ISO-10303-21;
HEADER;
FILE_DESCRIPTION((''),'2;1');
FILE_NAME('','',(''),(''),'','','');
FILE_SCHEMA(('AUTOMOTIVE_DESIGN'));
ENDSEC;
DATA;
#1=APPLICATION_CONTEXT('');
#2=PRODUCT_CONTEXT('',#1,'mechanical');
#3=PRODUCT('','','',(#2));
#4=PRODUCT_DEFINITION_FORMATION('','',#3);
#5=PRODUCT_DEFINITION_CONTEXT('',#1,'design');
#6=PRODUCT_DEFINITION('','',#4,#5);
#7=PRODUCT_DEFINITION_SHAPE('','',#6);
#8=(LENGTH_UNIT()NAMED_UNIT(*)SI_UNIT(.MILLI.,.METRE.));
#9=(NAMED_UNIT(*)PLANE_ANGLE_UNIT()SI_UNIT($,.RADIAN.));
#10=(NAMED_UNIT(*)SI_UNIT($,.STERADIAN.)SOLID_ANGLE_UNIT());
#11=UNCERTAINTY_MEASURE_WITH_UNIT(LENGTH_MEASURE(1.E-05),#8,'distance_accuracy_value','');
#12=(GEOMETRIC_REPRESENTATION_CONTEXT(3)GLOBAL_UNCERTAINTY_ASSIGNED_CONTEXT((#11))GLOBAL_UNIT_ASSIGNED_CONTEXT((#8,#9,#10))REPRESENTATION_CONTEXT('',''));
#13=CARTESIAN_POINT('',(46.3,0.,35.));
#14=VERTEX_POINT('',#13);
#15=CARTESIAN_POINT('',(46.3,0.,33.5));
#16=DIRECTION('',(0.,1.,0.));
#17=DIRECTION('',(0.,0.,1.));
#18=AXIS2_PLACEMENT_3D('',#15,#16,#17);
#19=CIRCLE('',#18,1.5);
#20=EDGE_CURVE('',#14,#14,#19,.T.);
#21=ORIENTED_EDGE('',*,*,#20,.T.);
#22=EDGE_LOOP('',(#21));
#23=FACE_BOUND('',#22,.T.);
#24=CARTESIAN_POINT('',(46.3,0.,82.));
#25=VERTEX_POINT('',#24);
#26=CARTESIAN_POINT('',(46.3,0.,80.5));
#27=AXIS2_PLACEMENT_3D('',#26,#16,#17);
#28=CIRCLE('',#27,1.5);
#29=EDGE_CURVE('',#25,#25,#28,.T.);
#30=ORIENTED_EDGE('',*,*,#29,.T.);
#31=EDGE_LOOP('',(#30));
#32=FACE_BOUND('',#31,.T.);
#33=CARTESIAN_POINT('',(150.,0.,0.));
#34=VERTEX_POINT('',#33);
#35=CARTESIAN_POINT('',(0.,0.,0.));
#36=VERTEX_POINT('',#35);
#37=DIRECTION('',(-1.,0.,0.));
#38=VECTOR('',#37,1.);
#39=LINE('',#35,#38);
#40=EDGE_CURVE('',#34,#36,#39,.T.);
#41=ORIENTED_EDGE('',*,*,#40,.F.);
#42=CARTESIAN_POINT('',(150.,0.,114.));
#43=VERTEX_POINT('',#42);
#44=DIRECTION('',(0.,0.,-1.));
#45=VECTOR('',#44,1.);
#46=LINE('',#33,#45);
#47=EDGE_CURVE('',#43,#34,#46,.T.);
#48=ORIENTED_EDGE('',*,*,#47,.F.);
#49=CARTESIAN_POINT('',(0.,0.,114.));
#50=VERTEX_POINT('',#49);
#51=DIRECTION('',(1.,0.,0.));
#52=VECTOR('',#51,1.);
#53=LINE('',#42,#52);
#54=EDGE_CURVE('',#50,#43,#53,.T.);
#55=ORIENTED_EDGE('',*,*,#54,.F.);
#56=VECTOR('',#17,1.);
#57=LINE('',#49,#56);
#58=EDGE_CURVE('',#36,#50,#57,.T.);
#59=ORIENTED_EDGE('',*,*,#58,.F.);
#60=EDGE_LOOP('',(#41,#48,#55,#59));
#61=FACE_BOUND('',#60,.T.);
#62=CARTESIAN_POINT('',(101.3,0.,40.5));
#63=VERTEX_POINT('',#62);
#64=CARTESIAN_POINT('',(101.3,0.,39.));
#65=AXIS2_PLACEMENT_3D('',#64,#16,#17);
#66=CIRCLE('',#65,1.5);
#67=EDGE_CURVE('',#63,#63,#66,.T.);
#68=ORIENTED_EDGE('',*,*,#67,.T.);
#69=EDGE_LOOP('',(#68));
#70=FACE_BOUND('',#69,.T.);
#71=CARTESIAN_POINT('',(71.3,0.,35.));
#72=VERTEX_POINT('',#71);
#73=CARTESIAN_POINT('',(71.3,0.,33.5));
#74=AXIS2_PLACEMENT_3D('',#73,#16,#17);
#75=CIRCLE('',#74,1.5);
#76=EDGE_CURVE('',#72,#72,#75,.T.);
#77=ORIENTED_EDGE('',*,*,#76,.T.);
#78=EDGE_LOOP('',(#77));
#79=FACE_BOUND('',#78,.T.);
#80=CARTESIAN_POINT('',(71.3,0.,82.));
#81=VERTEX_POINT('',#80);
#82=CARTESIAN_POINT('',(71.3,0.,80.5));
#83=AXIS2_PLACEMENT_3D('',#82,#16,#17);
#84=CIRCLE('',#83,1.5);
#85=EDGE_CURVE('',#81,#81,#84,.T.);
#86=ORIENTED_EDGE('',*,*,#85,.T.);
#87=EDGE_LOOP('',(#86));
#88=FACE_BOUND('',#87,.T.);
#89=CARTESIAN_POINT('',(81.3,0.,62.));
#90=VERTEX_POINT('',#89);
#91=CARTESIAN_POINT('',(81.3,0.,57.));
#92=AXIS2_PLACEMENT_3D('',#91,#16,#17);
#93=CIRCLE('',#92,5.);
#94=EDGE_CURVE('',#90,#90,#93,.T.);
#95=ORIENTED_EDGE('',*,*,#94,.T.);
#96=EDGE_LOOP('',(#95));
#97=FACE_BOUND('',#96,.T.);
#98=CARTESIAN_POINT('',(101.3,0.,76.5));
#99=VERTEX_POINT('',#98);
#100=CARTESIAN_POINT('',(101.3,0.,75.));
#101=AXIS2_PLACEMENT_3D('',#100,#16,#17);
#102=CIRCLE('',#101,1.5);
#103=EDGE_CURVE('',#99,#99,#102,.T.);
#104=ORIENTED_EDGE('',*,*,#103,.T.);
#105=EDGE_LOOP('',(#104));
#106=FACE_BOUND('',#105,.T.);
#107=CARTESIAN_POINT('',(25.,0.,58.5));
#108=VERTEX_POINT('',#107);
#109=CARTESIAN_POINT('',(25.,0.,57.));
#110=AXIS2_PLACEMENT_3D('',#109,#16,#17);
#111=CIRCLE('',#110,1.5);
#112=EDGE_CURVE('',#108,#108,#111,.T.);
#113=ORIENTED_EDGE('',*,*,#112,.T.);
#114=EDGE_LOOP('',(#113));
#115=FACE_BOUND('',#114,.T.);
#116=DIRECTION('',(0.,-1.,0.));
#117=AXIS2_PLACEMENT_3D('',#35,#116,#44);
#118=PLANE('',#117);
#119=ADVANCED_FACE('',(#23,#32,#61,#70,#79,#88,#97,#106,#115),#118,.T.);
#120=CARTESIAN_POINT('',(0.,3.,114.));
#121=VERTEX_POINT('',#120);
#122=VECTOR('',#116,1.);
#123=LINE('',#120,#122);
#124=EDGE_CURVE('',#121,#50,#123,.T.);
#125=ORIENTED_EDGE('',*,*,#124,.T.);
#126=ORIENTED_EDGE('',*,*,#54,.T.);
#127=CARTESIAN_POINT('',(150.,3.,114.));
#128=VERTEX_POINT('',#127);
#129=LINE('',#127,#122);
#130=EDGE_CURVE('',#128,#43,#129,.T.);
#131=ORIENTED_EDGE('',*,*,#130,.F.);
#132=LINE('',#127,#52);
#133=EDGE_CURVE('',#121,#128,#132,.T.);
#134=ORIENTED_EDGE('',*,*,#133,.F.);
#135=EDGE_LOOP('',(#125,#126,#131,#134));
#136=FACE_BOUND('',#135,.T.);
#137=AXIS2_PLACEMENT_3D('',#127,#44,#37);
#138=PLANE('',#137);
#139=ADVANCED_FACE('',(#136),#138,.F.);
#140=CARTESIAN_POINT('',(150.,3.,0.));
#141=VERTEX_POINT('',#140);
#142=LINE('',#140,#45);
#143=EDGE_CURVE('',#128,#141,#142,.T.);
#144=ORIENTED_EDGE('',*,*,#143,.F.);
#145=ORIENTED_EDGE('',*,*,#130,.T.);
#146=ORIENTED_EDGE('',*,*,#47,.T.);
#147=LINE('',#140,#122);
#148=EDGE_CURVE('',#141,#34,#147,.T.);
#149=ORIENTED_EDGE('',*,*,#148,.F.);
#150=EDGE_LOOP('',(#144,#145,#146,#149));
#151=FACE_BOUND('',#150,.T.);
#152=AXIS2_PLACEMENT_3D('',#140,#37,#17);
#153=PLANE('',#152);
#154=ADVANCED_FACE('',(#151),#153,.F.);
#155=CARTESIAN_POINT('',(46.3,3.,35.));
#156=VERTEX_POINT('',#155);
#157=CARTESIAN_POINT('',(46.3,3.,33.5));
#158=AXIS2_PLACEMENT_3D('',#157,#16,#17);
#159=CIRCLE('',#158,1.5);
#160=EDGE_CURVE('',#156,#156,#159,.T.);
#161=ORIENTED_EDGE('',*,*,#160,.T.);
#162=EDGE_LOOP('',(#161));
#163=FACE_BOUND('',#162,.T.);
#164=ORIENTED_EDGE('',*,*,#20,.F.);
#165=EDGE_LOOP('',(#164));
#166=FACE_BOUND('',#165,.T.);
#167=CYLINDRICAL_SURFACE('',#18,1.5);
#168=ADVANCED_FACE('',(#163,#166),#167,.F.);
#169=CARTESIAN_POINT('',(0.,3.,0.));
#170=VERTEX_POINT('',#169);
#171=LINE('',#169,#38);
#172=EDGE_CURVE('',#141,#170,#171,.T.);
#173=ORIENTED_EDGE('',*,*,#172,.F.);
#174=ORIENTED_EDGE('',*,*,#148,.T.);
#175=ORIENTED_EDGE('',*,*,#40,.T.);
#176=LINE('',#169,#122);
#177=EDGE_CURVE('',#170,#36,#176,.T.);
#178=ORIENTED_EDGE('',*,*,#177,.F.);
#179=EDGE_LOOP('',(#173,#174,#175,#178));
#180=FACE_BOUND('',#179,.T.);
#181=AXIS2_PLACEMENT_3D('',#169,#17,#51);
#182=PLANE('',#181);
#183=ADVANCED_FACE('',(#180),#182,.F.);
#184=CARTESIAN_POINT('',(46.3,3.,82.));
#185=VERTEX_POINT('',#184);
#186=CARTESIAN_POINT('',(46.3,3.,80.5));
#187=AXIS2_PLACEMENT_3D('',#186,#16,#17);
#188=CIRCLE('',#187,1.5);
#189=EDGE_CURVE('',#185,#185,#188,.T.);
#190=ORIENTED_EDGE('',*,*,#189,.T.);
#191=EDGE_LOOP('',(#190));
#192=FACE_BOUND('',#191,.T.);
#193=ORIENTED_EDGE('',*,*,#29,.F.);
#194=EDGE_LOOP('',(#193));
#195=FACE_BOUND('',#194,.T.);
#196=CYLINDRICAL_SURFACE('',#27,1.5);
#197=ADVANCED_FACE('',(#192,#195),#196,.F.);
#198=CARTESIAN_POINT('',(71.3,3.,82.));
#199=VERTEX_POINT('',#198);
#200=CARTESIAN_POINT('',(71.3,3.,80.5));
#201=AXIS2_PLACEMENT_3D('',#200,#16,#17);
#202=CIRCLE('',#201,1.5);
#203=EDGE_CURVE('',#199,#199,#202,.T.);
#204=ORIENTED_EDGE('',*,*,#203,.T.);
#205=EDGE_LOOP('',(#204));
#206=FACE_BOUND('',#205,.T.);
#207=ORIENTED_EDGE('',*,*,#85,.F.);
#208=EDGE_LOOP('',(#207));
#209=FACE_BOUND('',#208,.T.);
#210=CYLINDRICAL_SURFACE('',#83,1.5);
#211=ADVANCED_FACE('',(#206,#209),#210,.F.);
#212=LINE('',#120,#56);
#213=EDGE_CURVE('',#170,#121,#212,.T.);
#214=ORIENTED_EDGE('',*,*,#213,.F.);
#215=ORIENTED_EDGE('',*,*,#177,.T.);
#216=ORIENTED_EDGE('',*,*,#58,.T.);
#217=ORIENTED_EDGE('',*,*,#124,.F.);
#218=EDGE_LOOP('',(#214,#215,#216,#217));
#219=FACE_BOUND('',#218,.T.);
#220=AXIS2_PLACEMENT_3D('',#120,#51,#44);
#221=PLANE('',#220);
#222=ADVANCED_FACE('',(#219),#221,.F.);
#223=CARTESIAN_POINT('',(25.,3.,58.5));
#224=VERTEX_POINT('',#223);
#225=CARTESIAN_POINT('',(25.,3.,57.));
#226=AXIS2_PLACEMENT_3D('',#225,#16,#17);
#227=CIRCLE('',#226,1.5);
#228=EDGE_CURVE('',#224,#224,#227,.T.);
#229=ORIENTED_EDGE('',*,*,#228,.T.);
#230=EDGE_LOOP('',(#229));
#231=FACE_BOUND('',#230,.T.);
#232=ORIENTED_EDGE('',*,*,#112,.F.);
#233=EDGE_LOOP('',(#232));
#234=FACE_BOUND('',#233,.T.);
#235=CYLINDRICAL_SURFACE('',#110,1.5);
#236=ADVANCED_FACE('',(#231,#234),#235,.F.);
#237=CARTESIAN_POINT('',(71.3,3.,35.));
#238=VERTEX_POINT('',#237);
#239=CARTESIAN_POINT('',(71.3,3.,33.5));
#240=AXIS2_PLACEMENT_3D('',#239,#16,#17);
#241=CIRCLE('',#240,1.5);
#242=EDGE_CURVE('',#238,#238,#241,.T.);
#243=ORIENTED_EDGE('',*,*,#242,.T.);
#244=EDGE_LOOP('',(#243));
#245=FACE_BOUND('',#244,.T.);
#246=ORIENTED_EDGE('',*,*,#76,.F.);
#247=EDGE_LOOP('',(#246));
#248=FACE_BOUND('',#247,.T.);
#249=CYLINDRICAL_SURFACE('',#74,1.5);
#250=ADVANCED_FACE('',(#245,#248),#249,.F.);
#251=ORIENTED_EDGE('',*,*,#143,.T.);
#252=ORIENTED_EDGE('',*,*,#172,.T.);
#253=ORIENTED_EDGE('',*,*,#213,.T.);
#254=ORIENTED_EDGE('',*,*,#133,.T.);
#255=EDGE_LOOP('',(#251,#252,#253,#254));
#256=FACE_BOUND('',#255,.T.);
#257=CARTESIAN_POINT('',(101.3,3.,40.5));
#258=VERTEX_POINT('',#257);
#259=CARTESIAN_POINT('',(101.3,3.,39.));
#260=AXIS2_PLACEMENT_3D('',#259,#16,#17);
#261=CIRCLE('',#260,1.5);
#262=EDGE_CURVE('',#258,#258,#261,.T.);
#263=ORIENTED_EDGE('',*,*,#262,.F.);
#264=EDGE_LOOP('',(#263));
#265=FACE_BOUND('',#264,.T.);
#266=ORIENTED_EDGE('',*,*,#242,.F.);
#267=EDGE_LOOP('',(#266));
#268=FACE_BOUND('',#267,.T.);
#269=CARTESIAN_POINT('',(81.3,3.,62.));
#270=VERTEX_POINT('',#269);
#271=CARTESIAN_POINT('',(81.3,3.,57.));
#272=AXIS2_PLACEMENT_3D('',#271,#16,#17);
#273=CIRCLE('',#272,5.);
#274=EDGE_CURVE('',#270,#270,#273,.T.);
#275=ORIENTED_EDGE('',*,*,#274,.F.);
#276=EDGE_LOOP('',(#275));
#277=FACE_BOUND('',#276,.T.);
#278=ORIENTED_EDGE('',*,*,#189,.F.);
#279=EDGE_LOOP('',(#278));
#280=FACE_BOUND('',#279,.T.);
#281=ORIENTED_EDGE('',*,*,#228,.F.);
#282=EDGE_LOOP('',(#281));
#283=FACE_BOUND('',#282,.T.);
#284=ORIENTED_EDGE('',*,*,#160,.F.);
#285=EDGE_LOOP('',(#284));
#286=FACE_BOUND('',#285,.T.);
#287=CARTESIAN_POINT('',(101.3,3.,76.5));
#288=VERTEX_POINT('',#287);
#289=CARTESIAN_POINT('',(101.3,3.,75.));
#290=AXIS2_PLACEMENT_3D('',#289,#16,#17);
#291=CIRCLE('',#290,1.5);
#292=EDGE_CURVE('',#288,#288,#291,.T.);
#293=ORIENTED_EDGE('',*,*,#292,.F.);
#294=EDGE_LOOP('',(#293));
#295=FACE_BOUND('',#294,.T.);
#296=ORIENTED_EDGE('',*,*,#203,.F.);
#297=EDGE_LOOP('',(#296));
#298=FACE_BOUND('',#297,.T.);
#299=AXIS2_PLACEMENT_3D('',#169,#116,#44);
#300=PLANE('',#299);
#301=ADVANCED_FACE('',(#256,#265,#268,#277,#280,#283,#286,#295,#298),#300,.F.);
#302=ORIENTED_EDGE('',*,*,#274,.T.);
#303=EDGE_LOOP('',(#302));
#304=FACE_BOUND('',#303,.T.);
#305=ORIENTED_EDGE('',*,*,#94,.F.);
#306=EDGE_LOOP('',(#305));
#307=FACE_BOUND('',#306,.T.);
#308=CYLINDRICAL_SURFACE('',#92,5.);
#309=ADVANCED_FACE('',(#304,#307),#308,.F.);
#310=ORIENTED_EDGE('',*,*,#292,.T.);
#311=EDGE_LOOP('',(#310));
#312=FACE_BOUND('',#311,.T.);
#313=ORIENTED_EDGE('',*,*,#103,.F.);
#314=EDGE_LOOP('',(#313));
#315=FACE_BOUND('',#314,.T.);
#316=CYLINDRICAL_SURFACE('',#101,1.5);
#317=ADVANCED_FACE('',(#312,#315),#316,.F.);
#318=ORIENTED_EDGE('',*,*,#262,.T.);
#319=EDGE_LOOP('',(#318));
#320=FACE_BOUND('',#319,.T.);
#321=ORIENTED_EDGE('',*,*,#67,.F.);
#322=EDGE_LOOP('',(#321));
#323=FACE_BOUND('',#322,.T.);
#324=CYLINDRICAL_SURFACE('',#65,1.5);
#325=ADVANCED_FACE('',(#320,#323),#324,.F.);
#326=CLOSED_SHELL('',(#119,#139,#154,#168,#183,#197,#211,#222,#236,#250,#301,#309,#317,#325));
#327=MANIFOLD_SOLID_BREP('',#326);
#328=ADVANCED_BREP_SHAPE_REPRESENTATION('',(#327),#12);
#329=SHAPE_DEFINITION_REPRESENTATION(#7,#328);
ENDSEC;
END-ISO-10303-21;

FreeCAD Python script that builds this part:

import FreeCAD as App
import Part
import Sketcher
from FreeCAD import Vector

doc = App.newDocument("Part")
params = doc.addObject("Spreadsheet::Sheet", "Params")
for row, (alias, value) in enumerate([
    ("sketch1_width", "150 mm"),
    ("sketch1_height", "114 mm"),
    ("pad1_length", "3 mm"),
    ("sketch2_diameter", "3 mm"),
    ("sketch2_diameter2", "10 mm"),
    ("pocket1_length", "3 mm"),
], start=1):
    params.set(f"A{row}", alias)
    params.set(f"B{row}", "=" + value)
    params.setAlias(f"B{row}", alias)

body = doc.addObject("PartDesign::Body", "Body")

# Sketch on XZ plane
sketch1 = body.newObject("Sketcher::SketchObject", "Sketch")
sketch1.AttachmentSupport = (doc.getObject("XZ_Plane"), [""])
sketch1.MapMode = "FlatFace"
sketch1.addGeometry([
    Part.LineSegment(Vector(0, 0, 0), Vector(0, 114, 0)),
    Part.LineSegment(Vector(0, 114, 0), Vector(150, 114, 0)),
    Part.LineSegment(Vector(150, 114, 0), Vector(150, 0, 0)),
    Part.LineSegment(Vector(150, 0, 0), Vector(0, 0, 0)),
], False)
sketch1.addConstraint([
    Sketcher.Constraint("Coincident", 0, 2, 1, 1),
    Sketcher.Constraint("Coincident", 1, 2, 2, 1),
    Sketcher.Constraint("Coincident", 2, 2, 3, 1),
    Sketcher.Constraint("Coincident", 3, 2, 0, 1),
    Sketcher.Constraint("Vertical", 0),
    Sketcher.Constraint("Horizontal", 1),
    Sketcher.Constraint("Vertical", 2),
    Sketcher.Constraint("Horizontal", 3),
    Sketcher.Constraint("Coincident", 3, 2, -1, 1),
    Sketcher.Constraint("DistanceX", 1, 1, 1, 2, 150.0),
    Sketcher.Constraint("DistanceY", 0, 1, 0, 2, 114.0),
])
sketch1.setExpression("Constraints[9]", "Params.sketch1_width")
sketch1.setExpression("Constraints[10]", "Params.sketch1_height")
pad1 = body.newObject("PartDesign::Pad", "Pad")
pad1.Profile = sketch1
pad1.setExpression("Length", "Params.pad1_length")
pad1.Reversed = True

# Sketch on XZ plane
sketch2 = body.newObject("Sketcher::SketchObject", "Sketch001")
sketch2.AttachmentSupport = (doc.getObject("XZ_Plane"), [""])
sketch2.MapMode = "FlatFace"
sketch2.AttachmentOffset = App.Placement(Vector(0, 0, -3), App.Rotation())
sketch2.addGeometry([
    Part.Circle(Vector(25, 57, 0), Vector(0, 0, 1), 1.5),  # 0
    Part.Circle(Vector(101.3, 75, 0), Vector(0, 0, 1), 1.5),  # 1
    Part.Circle(Vector(101.3, 39, 0), Vector(0, 0, 1), 1.5),  # 2
    Part.Circle(Vector(71.3, 80.5, 0), Vector(0, 0, 1), 1.5),  # 3
    Part.Circle(Vector(46.3, 80.5, 0), Vector(0, 0, 1), 1.5),  # 4
    Part.Circle(Vector(71.3, 33.5, 0), Vector(0, 0, 1), 1.5),  # 5
    Part.Circle(Vector(46.3, 33.5, 0), Vector(0, 0, 1), 1.5),  # 6
    Part.Circle(Vector(81.3, 57, 0), Vector(0, 0, 1), 5),  # 7
], False)
sketch2.addConstraint([
    Sketcher.Constraint("Equal", 0, 1),
    Sketcher.Constraint("Equal", 1, 2),
    Sketcher.Constraint("Equal", 2, 3),
    Sketcher.Constraint("Equal", 3, 4),
    Sketcher.Constraint("Equal", 4, 5),
    Sketcher.Constraint("Equal", 5, 6),
    Sketcher.Constraint("Horizontal", 3, 3, 4, 3),
    Sketcher.Constraint("Horizontal", 5, 3, 6, 3),
    Sketcher.Constraint("Horizontal", 0, 3, 7, 3),
    Sketcher.Constraint("Vertical", 1, 3, 2, 3),
    Sketcher.Constraint("Vertical", 3, 3, 5, 3),
    Sketcher.Constraint("Vertical", 4, 3, 6, 3),
    Sketcher.Constraint("Diameter", 0, 3.0),
    Sketcher.Constraint("Diameter", 7, 10.0),
    Sketcher.Constraint("DistanceX", -1, 1, 0, 3, 25.0),
    Sketcher.Constraint("DistanceY", -1, 1, 0, 3, 57.0),
    Sketcher.Constraint("DistanceY", -1, 1, 1, 3, 75.0),
    Sketcher.Constraint("DistanceY", -1, 1, 2, 3, 39.0),
    Sketcher.Constraint("DistanceX", 3, 3, 1, 3, 30.0),
    Sketcher.Constraint("DistanceX", 4, 3, 3, 3, 25.0),
    Sketcher.Constraint("DistanceY", 5, 3, 3, 3, 47.0),
    Sketcher.Constraint("DistanceX", 3, 3, 7, 3, 10.0),
    Sketcher.Constraint("DistanceX", -1, 1, 1, 3, 101.3),
    Sketcher.Constraint("DistanceY", -1, 1, 3, 3, 80.5),
])
sketch2.setExpression("Constraints[12]", "Params.sketch2_diameter")
sketch2.setExpression("Constraints[13]", "Params.sketch2_diameter2")
pocket1 = body.newObject("PartDesign::Pocket", "Pocket")
pocket1.Profile = sketch2
pocket1.setExpression("Length", "Params.pocket1_length")
pocket1.Reversed = True

doc.recompute()
